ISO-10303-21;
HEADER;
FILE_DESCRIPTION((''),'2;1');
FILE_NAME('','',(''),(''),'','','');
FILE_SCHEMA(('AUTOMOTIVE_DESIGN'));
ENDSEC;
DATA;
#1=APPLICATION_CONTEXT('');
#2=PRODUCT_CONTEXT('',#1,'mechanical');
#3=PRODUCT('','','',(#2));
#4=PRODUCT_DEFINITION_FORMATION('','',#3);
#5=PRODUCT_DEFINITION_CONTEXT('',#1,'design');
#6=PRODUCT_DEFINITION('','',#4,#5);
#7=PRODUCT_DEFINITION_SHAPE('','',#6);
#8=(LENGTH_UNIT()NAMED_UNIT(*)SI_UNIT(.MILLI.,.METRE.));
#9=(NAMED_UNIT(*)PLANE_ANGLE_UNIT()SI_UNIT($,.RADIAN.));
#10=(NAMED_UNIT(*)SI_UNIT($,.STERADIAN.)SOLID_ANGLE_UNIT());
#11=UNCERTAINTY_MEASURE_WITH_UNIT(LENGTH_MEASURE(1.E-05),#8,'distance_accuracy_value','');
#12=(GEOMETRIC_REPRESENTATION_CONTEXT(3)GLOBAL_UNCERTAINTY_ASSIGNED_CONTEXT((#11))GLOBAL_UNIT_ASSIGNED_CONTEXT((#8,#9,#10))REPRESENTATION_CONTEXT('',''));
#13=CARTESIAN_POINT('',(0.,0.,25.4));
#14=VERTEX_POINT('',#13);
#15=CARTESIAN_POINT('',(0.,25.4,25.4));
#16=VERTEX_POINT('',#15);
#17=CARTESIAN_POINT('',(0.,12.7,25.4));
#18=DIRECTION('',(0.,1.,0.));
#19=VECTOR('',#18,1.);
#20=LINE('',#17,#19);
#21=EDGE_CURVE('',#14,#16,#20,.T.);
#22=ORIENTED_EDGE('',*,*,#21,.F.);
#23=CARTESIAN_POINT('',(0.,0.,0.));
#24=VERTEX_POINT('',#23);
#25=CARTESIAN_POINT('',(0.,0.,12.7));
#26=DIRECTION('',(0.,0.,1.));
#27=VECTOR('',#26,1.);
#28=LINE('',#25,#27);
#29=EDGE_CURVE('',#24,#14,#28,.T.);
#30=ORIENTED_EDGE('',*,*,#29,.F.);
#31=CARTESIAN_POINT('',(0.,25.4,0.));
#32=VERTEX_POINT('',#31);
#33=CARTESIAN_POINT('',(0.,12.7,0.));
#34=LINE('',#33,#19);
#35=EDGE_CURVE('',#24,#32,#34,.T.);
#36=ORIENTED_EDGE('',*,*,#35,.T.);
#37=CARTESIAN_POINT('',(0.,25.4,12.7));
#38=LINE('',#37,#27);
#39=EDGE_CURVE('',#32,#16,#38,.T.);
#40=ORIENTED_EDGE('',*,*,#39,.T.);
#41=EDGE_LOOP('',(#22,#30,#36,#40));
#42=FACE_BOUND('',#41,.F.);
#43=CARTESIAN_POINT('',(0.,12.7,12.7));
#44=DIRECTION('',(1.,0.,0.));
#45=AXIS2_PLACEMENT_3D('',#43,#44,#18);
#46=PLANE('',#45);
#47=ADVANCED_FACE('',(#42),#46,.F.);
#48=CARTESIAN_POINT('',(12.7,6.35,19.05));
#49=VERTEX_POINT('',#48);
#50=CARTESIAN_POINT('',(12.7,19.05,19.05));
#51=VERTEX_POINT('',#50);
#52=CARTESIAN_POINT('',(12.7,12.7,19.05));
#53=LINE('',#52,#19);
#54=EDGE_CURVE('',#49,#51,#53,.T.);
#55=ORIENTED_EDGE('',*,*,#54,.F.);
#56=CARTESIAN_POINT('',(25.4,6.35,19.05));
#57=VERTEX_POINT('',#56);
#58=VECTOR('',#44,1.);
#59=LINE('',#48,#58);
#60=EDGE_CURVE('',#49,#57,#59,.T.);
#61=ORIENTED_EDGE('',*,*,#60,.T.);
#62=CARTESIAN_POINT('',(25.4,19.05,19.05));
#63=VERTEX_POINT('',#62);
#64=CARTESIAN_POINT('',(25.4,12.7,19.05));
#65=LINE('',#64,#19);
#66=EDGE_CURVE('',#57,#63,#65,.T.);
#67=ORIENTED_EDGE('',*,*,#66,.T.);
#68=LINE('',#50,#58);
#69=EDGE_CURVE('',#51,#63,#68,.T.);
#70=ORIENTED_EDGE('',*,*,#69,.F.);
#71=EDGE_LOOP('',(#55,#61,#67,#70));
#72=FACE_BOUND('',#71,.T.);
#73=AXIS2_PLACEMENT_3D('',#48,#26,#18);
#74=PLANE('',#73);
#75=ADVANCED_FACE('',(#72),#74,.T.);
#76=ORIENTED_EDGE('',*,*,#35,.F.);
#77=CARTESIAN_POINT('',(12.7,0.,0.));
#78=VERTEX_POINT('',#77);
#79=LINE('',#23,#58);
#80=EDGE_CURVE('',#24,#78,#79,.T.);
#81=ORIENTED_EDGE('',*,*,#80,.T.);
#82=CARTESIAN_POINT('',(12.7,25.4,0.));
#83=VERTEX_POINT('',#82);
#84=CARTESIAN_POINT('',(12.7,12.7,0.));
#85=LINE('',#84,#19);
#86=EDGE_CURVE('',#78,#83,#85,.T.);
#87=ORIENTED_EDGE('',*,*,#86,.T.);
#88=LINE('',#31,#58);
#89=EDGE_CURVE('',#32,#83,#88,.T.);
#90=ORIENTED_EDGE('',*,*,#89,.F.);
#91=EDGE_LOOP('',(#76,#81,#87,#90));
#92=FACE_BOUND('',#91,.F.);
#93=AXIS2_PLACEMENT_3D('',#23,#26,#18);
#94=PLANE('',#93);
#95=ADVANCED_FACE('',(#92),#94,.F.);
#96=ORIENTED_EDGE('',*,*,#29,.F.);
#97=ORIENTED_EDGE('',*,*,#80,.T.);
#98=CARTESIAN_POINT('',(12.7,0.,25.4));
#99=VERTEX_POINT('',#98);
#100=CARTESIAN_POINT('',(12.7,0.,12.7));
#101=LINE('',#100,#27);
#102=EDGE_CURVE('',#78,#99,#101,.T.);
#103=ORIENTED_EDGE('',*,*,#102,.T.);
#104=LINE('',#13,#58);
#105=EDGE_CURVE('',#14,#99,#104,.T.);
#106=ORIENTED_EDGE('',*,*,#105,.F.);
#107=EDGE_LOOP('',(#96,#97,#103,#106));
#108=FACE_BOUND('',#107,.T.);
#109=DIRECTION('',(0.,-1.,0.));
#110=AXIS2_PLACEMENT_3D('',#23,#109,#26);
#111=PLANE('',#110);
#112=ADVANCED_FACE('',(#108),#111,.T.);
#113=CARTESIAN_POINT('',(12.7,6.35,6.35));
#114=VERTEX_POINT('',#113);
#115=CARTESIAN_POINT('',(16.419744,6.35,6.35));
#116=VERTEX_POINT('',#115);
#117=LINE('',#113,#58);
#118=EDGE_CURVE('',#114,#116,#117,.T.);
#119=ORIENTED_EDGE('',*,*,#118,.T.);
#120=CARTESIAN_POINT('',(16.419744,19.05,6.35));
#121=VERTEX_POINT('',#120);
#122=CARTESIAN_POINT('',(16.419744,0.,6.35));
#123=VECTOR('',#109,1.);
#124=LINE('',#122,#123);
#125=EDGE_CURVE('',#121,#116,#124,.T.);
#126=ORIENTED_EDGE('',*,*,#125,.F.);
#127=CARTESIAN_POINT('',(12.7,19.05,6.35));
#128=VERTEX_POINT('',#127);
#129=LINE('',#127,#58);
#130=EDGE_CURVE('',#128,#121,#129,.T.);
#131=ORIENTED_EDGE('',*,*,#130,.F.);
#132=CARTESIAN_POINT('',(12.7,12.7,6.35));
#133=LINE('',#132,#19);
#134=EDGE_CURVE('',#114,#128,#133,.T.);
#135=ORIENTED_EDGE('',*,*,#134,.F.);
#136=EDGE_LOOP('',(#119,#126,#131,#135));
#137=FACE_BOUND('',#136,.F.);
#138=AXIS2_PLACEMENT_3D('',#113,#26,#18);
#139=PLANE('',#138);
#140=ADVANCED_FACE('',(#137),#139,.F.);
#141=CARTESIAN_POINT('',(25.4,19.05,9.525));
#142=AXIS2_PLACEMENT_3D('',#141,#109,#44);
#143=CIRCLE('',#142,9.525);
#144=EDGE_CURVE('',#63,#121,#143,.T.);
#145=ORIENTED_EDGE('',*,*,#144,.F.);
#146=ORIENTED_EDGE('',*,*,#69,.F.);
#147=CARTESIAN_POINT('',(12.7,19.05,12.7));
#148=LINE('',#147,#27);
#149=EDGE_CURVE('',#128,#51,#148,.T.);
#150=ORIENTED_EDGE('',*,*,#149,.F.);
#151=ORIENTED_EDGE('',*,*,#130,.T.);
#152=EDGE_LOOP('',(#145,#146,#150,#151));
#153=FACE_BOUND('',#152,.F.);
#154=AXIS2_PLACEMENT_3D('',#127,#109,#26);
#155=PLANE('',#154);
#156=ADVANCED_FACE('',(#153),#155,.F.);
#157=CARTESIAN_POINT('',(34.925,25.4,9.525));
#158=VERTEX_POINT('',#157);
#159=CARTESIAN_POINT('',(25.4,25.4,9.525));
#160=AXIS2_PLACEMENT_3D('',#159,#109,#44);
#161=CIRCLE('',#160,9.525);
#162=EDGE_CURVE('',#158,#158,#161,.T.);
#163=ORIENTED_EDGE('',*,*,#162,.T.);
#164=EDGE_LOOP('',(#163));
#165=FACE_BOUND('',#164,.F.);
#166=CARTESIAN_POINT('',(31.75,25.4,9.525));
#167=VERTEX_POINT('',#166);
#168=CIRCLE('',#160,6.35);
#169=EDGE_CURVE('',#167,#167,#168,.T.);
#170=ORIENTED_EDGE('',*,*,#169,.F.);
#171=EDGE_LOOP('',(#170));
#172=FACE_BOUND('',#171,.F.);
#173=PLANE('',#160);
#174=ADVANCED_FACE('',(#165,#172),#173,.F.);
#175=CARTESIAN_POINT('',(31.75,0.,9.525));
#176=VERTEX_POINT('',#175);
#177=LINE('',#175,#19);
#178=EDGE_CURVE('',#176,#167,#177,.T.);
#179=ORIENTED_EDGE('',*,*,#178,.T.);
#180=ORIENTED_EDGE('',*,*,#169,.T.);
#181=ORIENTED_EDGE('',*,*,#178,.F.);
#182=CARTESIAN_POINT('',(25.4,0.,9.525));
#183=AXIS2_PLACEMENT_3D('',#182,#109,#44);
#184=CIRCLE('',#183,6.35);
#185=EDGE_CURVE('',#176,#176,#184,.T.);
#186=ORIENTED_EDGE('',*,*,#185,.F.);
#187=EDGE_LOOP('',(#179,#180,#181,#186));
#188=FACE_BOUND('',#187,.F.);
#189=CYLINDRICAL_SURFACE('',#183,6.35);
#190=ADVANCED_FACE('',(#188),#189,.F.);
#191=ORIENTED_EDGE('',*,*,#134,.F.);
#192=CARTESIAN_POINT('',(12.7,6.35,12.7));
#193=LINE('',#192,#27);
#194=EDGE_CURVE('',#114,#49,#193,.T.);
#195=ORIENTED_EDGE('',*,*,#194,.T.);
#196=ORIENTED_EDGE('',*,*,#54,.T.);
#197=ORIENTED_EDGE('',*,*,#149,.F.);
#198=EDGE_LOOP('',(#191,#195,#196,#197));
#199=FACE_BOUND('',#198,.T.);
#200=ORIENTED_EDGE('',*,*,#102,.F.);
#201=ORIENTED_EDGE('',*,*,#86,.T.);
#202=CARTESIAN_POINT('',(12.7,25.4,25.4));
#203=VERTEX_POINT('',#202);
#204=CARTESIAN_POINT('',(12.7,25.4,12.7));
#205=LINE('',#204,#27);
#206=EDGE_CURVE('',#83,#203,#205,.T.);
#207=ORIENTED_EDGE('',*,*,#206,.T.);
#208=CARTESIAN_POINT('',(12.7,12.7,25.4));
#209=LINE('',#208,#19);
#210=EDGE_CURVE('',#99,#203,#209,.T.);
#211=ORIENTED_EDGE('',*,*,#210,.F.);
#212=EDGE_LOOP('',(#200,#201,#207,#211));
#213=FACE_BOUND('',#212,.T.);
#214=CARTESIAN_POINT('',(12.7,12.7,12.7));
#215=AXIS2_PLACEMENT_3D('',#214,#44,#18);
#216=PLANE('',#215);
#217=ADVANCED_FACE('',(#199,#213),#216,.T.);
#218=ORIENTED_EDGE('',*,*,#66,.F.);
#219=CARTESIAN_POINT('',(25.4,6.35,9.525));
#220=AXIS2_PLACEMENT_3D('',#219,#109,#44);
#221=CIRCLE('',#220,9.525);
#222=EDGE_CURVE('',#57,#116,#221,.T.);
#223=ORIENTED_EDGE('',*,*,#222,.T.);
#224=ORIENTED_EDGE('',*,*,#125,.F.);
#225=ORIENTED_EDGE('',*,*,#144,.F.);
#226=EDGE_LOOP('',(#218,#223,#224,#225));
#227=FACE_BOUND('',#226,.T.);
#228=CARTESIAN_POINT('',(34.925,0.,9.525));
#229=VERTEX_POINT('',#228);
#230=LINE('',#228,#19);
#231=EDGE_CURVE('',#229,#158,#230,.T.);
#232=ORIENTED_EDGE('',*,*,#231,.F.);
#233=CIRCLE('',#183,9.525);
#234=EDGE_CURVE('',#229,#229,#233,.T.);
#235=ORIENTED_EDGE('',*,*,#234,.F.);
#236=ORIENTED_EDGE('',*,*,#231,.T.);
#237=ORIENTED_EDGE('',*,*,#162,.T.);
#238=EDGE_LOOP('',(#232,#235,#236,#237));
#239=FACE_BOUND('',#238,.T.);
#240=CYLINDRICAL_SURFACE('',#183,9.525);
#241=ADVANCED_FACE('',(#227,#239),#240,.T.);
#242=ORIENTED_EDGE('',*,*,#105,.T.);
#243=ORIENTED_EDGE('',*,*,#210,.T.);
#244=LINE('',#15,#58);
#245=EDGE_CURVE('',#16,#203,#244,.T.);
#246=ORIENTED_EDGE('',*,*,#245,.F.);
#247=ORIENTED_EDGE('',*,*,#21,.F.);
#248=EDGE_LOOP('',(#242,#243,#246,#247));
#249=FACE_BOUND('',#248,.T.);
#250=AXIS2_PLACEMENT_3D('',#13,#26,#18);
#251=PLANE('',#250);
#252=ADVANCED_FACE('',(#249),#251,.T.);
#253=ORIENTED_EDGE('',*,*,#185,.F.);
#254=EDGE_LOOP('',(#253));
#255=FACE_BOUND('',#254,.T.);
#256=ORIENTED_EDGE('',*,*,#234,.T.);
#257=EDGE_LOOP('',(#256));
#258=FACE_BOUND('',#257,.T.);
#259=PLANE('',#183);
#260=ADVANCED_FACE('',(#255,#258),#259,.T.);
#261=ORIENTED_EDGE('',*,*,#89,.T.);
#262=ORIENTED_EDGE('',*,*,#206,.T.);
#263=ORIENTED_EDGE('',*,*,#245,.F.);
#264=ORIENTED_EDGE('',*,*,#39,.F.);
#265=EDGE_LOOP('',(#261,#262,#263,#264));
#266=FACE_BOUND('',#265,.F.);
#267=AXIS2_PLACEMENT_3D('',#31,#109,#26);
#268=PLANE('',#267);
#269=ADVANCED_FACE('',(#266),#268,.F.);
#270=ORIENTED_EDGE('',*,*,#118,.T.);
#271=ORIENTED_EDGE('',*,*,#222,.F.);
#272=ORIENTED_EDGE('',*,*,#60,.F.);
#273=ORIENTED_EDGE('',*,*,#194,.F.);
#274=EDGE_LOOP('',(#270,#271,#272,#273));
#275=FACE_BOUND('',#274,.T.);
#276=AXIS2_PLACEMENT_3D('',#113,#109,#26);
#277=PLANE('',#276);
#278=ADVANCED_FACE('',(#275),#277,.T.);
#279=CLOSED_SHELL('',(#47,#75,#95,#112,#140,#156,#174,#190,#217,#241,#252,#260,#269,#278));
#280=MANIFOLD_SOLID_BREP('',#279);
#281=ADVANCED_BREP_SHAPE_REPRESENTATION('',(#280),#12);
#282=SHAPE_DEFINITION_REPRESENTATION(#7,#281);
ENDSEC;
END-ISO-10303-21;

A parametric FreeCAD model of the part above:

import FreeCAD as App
import Part
import Sketcher
Q = App.Units.Quantity

doc = App.newDocument("Part")
body = doc.addObject("PartDesign::Body", "Body")

sketch1 = doc.addObject("Sketcher::SketchObject", "Sketch")
body.addObject(sketch1)
sketch1.AttachmentSupport = (doc.YZ_Plane, [""])
sketch1.MapMode = "FlatFace"
sketch1.addGeometry([
    Part.LineSegment(App.Vector(0, 25, 0), App.Vector(0, 0, 0)),
    Part.LineSegment(App.Vector(0, 0, 0), App.Vector(25, 0, 0)),
    Part.LineSegment(App.Vector(25, 0, 0), App.Vector(25, 25, 0)),
    Part.LineSegment(App.Vector(25, 25, 0), App.Vector(0, 25, 0)),
], False)
sketch1.addConstraint([
    Sketcher.Constraint("Coincident", 0, 2, 1, 1),
    Sketcher.Constraint("Coincident", 1, 2, 2, 1),
    Sketcher.Constraint("Coincident", 2, 2, 3, 1),
    Sketcher.Constraint("Coincident", 3, 2, 0, 1),
    Sketcher.Constraint("Vertical", 0),
    Sketcher.Constraint("Horizontal", 1),
    Sketcher.Constraint("Vertical", 2),
    Sketcher.Constraint("Horizontal", 3),
    Sketcher.Constraint("Coincident", 0, 2, -1, 1),
    Sketcher.Constraint("Equal", 3, 0),
    Sketcher.Constraint("DistanceX", 1, 1, 1, 2, Q("1 in")),
])
pad1 = doc.addObject("PartDesign::Pad", "Pad")
body.addObject(pad1)
pad1.Profile = sketch1
pad1.Length = Q("0.5 in")

sketch2 = doc.addObject("Sketcher::SketchObject", "Sketch001")
body.addObject(sketch2)
sketch2.AttachmentSupport = (doc.YZ_Plane, [""])
sketch2.MapMode = "FlatFace"
sketch2.AttachmentOffset = App.Placement(App.Vector(0, 0, 0.5 * 25.4), App.Rotation())
sketch2.addGeometry([
    Part.LineSegment(App.Vector(6, 19, 0), App.Vector(6, 6, 0)),
    Part.LineSegment(App.Vector(6, 6, 0), App.Vector(19, 6, 0)),
    Part.LineSegment(App.Vector(19, 6, 0), App.Vector(19, 19, 0)),
    Part.LineSegment(App.Vector(19, 19, 0), App.Vector(6, 19, 0)),
], False)
sketch2.addConstraint([
    Sketcher.Constraint("Coincident", 0, 2, 1, 1),
    Sketcher.Constraint("Coincident", 1, 2, 2, 1),
    Sketcher.Constraint("Coincident", 2, 2, 3, 1),
    Sketcher.Constraint("Coincident", 3, 2, 0, 1),
    Sketcher.Constraint("Vertical", 0),
    Sketcher.Constraint("Horizontal", 1),
    Sketcher.Constraint("Vertical", 2),
    Sketcher.Constraint("Horizontal", 3),
    Sketcher.Constraint("Equal", 3, 0),
    Sketcher.Constraint("DistanceX", 1, 1, 1, 2, Q("0.5 in")),
    Sketcher.Constraint("DistanceX", -1, 1, 0, 2, Q("0.25 in")),
    Sketcher.Constraint("DistanceY", -1, 1, 0, 2, Q("0.25 in")),
])
pad2 = doc.addObject("PartDesign::Pad", "Pad001")
body.addObject(pad2)
pad2.Profile = sketch2
pad2.Length = Q("0.5 in")

sketch3 = doc.addObject("Sketcher::SketchObject", "Sketch002")
body.addObject(sketch3)
sketch3.AttachmentSupport = (doc.XZ_Plane, [""])
sketch3.MapMode = "FlatFace"
sketch3.addGeometry(Part.Circle(App.Vector(25, 10, 0), App.Vector(0, 0, 1), 10), False)
sketch3.addConstraint([
    Sketcher.Constraint("Diameter", 0, Q("0.75 in")),
    Sketcher.Constraint("DistanceX", -1, 1, 0, 3, Q("1 in")),
    Sketcher.Constraint("DistanceY", -1, 1, 0, 3, Q("0.375 in")),
])
pad3 = doc.addObject("PartDesign::Pad", "Pad002")
body.addObject(pad3)
pad3.Profile = sketch3
pad3.Length = Q("1 in")
pad3.Reversed = True

sketch4 = doc.addObject("Sketcher::SketchObject", "Sketch003")
body.addObject(sketch4)
sketch4.AttachmentSupport = (doc.XZ_Plane, [""])
sketch4.MapMode = "FlatFace"
sketch4.addGeometry(Part.Circle(App.Vector(25, 10, 0), App.Vector(0, 0, 1), 6), False)
sketch4.addConstraint([
    Sketcher.Constraint("Diameter", 0, Q("0.5 in")),
    Sketcher.Constraint("DistanceX", -1, 1, 0, 3, Q("1 in")),
    Sketcher.Constraint("DistanceY", -1, 1, 0, 3, Q("0.375 in")),
])
pocket1 = doc.addObject("PartDesign::Pocket", "Pocket")
body.addObject(pocket1)
pocket1.Profile = sketch4
pocket1.Length = Q("1 in")

doc.recompute()
